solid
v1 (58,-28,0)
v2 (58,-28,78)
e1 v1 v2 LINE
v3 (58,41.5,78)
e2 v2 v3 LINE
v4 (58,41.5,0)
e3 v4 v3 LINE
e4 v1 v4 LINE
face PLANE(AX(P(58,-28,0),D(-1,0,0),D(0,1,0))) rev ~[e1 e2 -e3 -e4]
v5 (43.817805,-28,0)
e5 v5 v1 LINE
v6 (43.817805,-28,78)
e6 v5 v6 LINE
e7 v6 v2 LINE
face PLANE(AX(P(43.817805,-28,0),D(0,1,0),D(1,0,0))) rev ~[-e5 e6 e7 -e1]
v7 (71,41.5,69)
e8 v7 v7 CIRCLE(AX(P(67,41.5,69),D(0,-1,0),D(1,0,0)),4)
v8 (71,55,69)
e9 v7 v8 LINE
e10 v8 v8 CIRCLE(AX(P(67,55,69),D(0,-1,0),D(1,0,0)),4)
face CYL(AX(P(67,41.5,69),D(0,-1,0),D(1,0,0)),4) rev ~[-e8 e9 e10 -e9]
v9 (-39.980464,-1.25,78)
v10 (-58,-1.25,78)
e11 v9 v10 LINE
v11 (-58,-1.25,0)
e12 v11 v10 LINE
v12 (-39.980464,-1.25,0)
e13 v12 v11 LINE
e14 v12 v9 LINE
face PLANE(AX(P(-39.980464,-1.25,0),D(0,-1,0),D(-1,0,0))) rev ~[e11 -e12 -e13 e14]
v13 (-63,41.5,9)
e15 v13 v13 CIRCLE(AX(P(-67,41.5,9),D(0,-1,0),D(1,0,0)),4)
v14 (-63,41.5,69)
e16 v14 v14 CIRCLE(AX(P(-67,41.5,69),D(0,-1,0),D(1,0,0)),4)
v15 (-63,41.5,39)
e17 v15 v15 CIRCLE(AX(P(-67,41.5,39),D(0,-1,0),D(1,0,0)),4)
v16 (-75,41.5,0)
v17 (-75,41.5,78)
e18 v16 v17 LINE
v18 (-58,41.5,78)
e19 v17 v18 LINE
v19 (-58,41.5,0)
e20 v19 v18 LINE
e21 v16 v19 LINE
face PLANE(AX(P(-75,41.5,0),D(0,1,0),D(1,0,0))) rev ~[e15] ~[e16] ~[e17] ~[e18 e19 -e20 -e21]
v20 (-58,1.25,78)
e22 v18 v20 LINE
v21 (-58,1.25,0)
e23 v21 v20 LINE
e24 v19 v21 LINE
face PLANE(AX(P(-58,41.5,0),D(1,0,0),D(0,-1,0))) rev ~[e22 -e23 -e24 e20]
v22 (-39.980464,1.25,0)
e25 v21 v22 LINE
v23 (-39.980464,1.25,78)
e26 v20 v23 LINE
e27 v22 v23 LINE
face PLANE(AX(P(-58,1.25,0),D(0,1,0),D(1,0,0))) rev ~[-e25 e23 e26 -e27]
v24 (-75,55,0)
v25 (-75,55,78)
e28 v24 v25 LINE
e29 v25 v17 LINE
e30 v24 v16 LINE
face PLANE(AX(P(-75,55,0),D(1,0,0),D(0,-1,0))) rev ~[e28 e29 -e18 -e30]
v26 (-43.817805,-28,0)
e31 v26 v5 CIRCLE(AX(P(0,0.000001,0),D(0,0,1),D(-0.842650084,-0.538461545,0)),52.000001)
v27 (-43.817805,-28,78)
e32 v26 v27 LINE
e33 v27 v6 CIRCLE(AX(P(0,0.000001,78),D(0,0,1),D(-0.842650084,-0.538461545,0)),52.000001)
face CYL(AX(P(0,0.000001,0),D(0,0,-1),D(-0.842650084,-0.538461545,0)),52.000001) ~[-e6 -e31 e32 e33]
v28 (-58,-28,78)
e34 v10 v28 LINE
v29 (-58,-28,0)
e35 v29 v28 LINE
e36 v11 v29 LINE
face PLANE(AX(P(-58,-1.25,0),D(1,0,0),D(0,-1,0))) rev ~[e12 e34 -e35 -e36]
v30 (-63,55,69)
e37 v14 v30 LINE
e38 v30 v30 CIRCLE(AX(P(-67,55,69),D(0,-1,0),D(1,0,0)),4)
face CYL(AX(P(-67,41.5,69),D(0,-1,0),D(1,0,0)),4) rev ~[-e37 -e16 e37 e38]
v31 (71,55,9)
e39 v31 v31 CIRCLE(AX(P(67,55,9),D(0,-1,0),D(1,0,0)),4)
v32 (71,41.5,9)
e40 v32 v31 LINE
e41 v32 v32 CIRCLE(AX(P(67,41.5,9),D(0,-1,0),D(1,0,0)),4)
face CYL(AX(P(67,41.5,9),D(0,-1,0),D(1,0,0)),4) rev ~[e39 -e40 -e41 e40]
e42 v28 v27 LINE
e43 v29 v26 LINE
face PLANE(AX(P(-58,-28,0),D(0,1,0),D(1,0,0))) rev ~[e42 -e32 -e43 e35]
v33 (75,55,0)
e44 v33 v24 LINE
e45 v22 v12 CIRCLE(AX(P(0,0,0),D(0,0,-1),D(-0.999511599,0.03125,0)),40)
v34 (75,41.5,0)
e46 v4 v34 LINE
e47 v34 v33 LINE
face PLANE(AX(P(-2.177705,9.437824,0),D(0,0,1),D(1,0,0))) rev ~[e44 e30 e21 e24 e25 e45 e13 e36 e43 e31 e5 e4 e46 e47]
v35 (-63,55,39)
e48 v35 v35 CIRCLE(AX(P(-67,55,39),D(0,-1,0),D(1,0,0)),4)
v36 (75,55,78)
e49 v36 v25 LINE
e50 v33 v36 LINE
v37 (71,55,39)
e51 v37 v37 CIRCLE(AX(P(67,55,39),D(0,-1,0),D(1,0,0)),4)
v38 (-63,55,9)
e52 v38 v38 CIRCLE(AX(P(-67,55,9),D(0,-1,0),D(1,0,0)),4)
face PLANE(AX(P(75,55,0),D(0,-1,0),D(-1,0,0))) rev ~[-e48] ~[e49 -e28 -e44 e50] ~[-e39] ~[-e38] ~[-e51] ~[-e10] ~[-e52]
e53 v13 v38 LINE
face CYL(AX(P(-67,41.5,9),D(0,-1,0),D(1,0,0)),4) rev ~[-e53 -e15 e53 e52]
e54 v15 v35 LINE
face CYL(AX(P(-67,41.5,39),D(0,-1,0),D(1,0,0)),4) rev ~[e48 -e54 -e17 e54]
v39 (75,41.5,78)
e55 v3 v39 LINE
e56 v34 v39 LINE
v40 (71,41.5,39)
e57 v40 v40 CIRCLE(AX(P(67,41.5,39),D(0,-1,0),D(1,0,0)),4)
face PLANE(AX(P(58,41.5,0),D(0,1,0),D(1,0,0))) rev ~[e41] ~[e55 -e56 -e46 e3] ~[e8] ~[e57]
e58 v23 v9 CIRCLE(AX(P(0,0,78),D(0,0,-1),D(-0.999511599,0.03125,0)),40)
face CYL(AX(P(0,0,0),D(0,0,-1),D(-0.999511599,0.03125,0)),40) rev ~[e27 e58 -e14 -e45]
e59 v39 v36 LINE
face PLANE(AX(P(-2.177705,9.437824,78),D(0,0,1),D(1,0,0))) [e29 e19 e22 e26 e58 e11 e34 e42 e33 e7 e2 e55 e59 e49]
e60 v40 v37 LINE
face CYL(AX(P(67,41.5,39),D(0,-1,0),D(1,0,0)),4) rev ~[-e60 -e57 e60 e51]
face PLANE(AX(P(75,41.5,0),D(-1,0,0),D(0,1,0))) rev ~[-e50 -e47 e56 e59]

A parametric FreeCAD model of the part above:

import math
import FreeCAD as App
import Part
import Sketcher

doc = App.newDocument("Part")
params = doc.addObject("Spreadsheet::Sheet", "Params")
for row, (alias, value) in enumerate([
    ("sketch1_radius", "40 mm"),
    ("sketch1_radius2", "52.000001 mm"),
    ("sketch1_width", "17 mm"),
    ("sketch1_width2", "150 mm"),
    ("sketch1_height", "69.5 mm"),
    ("pad1_length", "78 mm"),
    ("sketch2_diameter", "8 mm"),
], start=1):
    params.set(f"A{row}", alias)
    params.set(f"B{row}", "=" + value)
    params.setAlias(f"B{row}", alias)

body = doc.addObject("PartDesign::Body", "Body")

# Sketch on XY plane
sketch1 = body.newObject("Sketcher::SketchObject", "Sketch")
sketch1.AttachmentSupport = (doc.getObject("XY_Plane"), [""])
sketch1.MapMode = "FlatFace"
sketch1.addGeometry([
    Part.ArcOfCircle(Part.Circle(App.Vector(0, 0, 0), App.Vector(0, 0, 1), 40), math.radians(-178), math.radians(178)),  # 0
    Part.LineSegment(App.Vector(-40, -1.2, 0), App.Vector(-58, -1.2, 0)),  # 1
    Part.LineSegment(App.Vector(-58, -1.2, 0), App.Vector(-58, -28, 0)),  # 2
    Part.LineSegment(App.Vector(-58, -28, 0), App.Vector(-43.8, -28, 0)),  # 3
    Part.ArcOfCircle(Part.Circle(App.Vector(0, 0, 0), App.Vector(0, 0, 1), 52), math.radians(-147), math.radians(-33)),  # 4
    Part.LineSegment(App.Vector(43.8, -28, 0), App.Vector(58, -28, 0)),  # 5
    Part.LineSegment(App.Vector(58, -28, 0), App.Vector(58, 41.5, 0)),  # 6
    Part.LineSegment(App.Vector(58, 41.5, 0), App.Vector(75, 41.5, 0)),  # 7
    Part.LineSegment(App.Vector(75, 41.5, 0), App.Vector(75, 55, 0)),  # 8
    Part.LineSegment(App.Vector(75, 55, 0), App.Vector(-75, 55, 0)),  # 9
    Part.LineSegment(App.Vector(-75, 55, 0), App.Vector(-75, 41.5, 0)),  # 10
    Part.LineSegment(App.Vector(-75, 41.5, 0), App.Vector(-58, 41.5, 0)),  # 11
    Part.LineSegment(App.Vector(-58, 41.5, 0), App.Vector(-58, 1.2, 0)),  # 12
    Part.LineSegment(App.Vector(-58, 1.2, 0), App.Vector(-40, 1.2, 0)),  # 13
], False)
sketch1.addConstraint([
    Sketcher.Constraint("Coincident", 0, 1, 1, 1),
    Sketcher.Constraint("Coincident", 1, 2, 2, 1),
    Sketcher.Constraint("Coincident", 2, 2, 3, 1),
    Sketcher.Constraint("Coincident", 3, 2, 4, 1),
    Sketcher.Constraint("Coincident", 4, 2, 5, 1),
    Sketcher.Constraint("Coincident", 5, 2, 6, 1),
    Sketcher.Constraint("Coincident", 6, 2, 7, 1),
    Sketcher.Constraint("Coincident", 7, 2, 8, 1),
    Sketcher.Constraint("Coincident", 8, 2, 9, 1),
    Sketcher.Constraint("Coincident", 9, 2, 10, 1),
    Sketcher.Constraint("Coincident", 10, 2, 11, 1),
    Sketcher.Constraint("Coincident", 11, 2, 12, 1),
    Sketcher.Constraint("Coincident", 12, 2, 13, 1),
    Sketcher.Constraint("Coincident", 13, 2, 0, 2),
    Sketcher.Constraint("Horizontal", 1),
    Sketcher.Constraint("Vertical", 2),
    Sketcher.Constraint("Horizontal", 3),
    Sketcher.Constraint("Horizontal", 5),
    Sketcher.Constraint("Vertical", 6),
    Sketcher.Constraint("Horizontal", 7),
    Sketcher.Constraint("Vertical", 8),
    Sketcher.Constraint("Horizontal", 9),
    Sketcher.Constraint("Vertical", 10),
    Sketcher.Constraint("Horizontal", 11),
    Sketcher.Constraint("Vertical", 12),
    Sketcher.Constraint("Horizontal", 13),
    Sketcher.Constraint("Coincident", 0, 3, -1, 1),
    Sketcher.Constraint("Coincident", 4, 3, -1, 1),
    Sketcher.Constraint("Symmetric", 2, 2, 5, 2, -2),
    Sketcher.Constraint("Symmetric", 7, 2, 10, 2, -2),
    Sketcher.Constraint("Symmetric", 1, 2, 12, 2, -1),
    Sketcher.Constraint("Radius", 0, 40.0),
    Sketcher.Constraint("Radius", 4, 52.000001),
    Sketcher.Constraint("DistanceX", 7, 1, 7, 2, 17.0),
    Sketcher.Constraint("DistanceX", 9, 2, 9, 1, 150.0),
    Sketcher.Constraint("DistanceY", 6, 1, 6, 2, 69.5),
    Sketcher.Constraint("DistanceY", 8, 1, 8, 2, 13.5),
    Sketcher.Constraint("DistanceY", 2, 2, -1, 1, 28.0),
    Sketcher.Constraint("DistanceY", 2, 2, 2, 1, 26.75),
])
sketch1.setExpression("Constraints[31]", "Params.sketch1_radius")
sketch1.setExpression("Constraints[32]", "Params.sketch1_radius2")
sketch1.setExpression("Constraints[33]", "Params.sketch1_width")
sketch1.setExpression("Constraints[34]", "Params.sketch1_width2")
sketch1.setExpression("Constraints[35]", "Params.sketch1_height")
pad1 = body.newObject("PartDesign::Pad", "Pad")
pad1.Profile = sketch1
pad1.setExpression("Length", "Params.pad1_length")

# Sketch on XZ plane
sketch2 = body.newObject("Sketcher::SketchObject", "Sketch001")
sketch2.AttachmentSupport = (doc.getObject("XZ_Plane"), [""])
sketch2.MapMode = "FlatFace"
sketch2.AttachmentOffset = App.Placement(App.Vector(0, 0, -41.5), App.Rotation())
sketch2.addGeometry([
    Part.Circle(App.Vector(-67, 69, 0), App.Vector(0, 0, 1), 4),  # 0
    Part.Circle(App.Vector(-67, 39, 0), App.Vector(0, 0, 1), 4),  # 1
    Part.Circle(App.Vector(-67, 9, 0), App.Vector(0, 0, 1), 4),  # 2
    Part.Circle(App.Vector(67, 9, 0), App.Vector(0, 0, 1), 4),  # 3
    Part.Circle(App.Vector(67, 39, 0), App.Vector(0, 0, 1), 4),  # 4
    Part.Circle(App.Vector(67, 69, 0), App.Vector(0, 0, 1), 4),  # 5
], False)
sketch2.addConstraint([
    Sketcher.Constraint("Equal", 0, 1),
    Sketcher.Constraint("Equal", 1, 2),
    Sketcher.Constraint("Equal", 2, 3),
    Sketcher.Constraint("Equal", 3, 4),
    Sketcher.Constraint("Equal", 4, 5),
    Sketcher.Constraint("Symmetric", 2, 3, 3, 3, -2),
    Sketcher.Constraint("Symmetric", 1, 3, 4, 3, -2),
    Sketcher.Constraint("Symmetric", 0, 3, 5, 3, -2),
    Sketcher.Constraint("Vertical", 0, 3, 1, 3),
    Sketcher.Constraint("Vertical", 1, 3, 2, 3),
    Sketcher.Constraint("Diameter", 0, 8.0),
    Sketcher.Constraint("DistanceX", 0, 3, -1, 1, 67.0),
    Sketcher.Constraint("DistanceY", -1, 1, 0, 3, 69.0),
    Sketcher.Constraint("DistanceY", -1, 1, 1, 3, 39.0),
    Sketcher.Constraint("DistanceY", -1, 1, 2, 3, 9.0),
])
sketch2.setExpression("Constraints[10]", "Params.sketch2_diameter")
pocket1 = body.newObject("PartDesign::Pocket", "Pocket")
pocket1.Profile = sketch2
pocket1.Type = "ThroughAll"

doc.recompute()
